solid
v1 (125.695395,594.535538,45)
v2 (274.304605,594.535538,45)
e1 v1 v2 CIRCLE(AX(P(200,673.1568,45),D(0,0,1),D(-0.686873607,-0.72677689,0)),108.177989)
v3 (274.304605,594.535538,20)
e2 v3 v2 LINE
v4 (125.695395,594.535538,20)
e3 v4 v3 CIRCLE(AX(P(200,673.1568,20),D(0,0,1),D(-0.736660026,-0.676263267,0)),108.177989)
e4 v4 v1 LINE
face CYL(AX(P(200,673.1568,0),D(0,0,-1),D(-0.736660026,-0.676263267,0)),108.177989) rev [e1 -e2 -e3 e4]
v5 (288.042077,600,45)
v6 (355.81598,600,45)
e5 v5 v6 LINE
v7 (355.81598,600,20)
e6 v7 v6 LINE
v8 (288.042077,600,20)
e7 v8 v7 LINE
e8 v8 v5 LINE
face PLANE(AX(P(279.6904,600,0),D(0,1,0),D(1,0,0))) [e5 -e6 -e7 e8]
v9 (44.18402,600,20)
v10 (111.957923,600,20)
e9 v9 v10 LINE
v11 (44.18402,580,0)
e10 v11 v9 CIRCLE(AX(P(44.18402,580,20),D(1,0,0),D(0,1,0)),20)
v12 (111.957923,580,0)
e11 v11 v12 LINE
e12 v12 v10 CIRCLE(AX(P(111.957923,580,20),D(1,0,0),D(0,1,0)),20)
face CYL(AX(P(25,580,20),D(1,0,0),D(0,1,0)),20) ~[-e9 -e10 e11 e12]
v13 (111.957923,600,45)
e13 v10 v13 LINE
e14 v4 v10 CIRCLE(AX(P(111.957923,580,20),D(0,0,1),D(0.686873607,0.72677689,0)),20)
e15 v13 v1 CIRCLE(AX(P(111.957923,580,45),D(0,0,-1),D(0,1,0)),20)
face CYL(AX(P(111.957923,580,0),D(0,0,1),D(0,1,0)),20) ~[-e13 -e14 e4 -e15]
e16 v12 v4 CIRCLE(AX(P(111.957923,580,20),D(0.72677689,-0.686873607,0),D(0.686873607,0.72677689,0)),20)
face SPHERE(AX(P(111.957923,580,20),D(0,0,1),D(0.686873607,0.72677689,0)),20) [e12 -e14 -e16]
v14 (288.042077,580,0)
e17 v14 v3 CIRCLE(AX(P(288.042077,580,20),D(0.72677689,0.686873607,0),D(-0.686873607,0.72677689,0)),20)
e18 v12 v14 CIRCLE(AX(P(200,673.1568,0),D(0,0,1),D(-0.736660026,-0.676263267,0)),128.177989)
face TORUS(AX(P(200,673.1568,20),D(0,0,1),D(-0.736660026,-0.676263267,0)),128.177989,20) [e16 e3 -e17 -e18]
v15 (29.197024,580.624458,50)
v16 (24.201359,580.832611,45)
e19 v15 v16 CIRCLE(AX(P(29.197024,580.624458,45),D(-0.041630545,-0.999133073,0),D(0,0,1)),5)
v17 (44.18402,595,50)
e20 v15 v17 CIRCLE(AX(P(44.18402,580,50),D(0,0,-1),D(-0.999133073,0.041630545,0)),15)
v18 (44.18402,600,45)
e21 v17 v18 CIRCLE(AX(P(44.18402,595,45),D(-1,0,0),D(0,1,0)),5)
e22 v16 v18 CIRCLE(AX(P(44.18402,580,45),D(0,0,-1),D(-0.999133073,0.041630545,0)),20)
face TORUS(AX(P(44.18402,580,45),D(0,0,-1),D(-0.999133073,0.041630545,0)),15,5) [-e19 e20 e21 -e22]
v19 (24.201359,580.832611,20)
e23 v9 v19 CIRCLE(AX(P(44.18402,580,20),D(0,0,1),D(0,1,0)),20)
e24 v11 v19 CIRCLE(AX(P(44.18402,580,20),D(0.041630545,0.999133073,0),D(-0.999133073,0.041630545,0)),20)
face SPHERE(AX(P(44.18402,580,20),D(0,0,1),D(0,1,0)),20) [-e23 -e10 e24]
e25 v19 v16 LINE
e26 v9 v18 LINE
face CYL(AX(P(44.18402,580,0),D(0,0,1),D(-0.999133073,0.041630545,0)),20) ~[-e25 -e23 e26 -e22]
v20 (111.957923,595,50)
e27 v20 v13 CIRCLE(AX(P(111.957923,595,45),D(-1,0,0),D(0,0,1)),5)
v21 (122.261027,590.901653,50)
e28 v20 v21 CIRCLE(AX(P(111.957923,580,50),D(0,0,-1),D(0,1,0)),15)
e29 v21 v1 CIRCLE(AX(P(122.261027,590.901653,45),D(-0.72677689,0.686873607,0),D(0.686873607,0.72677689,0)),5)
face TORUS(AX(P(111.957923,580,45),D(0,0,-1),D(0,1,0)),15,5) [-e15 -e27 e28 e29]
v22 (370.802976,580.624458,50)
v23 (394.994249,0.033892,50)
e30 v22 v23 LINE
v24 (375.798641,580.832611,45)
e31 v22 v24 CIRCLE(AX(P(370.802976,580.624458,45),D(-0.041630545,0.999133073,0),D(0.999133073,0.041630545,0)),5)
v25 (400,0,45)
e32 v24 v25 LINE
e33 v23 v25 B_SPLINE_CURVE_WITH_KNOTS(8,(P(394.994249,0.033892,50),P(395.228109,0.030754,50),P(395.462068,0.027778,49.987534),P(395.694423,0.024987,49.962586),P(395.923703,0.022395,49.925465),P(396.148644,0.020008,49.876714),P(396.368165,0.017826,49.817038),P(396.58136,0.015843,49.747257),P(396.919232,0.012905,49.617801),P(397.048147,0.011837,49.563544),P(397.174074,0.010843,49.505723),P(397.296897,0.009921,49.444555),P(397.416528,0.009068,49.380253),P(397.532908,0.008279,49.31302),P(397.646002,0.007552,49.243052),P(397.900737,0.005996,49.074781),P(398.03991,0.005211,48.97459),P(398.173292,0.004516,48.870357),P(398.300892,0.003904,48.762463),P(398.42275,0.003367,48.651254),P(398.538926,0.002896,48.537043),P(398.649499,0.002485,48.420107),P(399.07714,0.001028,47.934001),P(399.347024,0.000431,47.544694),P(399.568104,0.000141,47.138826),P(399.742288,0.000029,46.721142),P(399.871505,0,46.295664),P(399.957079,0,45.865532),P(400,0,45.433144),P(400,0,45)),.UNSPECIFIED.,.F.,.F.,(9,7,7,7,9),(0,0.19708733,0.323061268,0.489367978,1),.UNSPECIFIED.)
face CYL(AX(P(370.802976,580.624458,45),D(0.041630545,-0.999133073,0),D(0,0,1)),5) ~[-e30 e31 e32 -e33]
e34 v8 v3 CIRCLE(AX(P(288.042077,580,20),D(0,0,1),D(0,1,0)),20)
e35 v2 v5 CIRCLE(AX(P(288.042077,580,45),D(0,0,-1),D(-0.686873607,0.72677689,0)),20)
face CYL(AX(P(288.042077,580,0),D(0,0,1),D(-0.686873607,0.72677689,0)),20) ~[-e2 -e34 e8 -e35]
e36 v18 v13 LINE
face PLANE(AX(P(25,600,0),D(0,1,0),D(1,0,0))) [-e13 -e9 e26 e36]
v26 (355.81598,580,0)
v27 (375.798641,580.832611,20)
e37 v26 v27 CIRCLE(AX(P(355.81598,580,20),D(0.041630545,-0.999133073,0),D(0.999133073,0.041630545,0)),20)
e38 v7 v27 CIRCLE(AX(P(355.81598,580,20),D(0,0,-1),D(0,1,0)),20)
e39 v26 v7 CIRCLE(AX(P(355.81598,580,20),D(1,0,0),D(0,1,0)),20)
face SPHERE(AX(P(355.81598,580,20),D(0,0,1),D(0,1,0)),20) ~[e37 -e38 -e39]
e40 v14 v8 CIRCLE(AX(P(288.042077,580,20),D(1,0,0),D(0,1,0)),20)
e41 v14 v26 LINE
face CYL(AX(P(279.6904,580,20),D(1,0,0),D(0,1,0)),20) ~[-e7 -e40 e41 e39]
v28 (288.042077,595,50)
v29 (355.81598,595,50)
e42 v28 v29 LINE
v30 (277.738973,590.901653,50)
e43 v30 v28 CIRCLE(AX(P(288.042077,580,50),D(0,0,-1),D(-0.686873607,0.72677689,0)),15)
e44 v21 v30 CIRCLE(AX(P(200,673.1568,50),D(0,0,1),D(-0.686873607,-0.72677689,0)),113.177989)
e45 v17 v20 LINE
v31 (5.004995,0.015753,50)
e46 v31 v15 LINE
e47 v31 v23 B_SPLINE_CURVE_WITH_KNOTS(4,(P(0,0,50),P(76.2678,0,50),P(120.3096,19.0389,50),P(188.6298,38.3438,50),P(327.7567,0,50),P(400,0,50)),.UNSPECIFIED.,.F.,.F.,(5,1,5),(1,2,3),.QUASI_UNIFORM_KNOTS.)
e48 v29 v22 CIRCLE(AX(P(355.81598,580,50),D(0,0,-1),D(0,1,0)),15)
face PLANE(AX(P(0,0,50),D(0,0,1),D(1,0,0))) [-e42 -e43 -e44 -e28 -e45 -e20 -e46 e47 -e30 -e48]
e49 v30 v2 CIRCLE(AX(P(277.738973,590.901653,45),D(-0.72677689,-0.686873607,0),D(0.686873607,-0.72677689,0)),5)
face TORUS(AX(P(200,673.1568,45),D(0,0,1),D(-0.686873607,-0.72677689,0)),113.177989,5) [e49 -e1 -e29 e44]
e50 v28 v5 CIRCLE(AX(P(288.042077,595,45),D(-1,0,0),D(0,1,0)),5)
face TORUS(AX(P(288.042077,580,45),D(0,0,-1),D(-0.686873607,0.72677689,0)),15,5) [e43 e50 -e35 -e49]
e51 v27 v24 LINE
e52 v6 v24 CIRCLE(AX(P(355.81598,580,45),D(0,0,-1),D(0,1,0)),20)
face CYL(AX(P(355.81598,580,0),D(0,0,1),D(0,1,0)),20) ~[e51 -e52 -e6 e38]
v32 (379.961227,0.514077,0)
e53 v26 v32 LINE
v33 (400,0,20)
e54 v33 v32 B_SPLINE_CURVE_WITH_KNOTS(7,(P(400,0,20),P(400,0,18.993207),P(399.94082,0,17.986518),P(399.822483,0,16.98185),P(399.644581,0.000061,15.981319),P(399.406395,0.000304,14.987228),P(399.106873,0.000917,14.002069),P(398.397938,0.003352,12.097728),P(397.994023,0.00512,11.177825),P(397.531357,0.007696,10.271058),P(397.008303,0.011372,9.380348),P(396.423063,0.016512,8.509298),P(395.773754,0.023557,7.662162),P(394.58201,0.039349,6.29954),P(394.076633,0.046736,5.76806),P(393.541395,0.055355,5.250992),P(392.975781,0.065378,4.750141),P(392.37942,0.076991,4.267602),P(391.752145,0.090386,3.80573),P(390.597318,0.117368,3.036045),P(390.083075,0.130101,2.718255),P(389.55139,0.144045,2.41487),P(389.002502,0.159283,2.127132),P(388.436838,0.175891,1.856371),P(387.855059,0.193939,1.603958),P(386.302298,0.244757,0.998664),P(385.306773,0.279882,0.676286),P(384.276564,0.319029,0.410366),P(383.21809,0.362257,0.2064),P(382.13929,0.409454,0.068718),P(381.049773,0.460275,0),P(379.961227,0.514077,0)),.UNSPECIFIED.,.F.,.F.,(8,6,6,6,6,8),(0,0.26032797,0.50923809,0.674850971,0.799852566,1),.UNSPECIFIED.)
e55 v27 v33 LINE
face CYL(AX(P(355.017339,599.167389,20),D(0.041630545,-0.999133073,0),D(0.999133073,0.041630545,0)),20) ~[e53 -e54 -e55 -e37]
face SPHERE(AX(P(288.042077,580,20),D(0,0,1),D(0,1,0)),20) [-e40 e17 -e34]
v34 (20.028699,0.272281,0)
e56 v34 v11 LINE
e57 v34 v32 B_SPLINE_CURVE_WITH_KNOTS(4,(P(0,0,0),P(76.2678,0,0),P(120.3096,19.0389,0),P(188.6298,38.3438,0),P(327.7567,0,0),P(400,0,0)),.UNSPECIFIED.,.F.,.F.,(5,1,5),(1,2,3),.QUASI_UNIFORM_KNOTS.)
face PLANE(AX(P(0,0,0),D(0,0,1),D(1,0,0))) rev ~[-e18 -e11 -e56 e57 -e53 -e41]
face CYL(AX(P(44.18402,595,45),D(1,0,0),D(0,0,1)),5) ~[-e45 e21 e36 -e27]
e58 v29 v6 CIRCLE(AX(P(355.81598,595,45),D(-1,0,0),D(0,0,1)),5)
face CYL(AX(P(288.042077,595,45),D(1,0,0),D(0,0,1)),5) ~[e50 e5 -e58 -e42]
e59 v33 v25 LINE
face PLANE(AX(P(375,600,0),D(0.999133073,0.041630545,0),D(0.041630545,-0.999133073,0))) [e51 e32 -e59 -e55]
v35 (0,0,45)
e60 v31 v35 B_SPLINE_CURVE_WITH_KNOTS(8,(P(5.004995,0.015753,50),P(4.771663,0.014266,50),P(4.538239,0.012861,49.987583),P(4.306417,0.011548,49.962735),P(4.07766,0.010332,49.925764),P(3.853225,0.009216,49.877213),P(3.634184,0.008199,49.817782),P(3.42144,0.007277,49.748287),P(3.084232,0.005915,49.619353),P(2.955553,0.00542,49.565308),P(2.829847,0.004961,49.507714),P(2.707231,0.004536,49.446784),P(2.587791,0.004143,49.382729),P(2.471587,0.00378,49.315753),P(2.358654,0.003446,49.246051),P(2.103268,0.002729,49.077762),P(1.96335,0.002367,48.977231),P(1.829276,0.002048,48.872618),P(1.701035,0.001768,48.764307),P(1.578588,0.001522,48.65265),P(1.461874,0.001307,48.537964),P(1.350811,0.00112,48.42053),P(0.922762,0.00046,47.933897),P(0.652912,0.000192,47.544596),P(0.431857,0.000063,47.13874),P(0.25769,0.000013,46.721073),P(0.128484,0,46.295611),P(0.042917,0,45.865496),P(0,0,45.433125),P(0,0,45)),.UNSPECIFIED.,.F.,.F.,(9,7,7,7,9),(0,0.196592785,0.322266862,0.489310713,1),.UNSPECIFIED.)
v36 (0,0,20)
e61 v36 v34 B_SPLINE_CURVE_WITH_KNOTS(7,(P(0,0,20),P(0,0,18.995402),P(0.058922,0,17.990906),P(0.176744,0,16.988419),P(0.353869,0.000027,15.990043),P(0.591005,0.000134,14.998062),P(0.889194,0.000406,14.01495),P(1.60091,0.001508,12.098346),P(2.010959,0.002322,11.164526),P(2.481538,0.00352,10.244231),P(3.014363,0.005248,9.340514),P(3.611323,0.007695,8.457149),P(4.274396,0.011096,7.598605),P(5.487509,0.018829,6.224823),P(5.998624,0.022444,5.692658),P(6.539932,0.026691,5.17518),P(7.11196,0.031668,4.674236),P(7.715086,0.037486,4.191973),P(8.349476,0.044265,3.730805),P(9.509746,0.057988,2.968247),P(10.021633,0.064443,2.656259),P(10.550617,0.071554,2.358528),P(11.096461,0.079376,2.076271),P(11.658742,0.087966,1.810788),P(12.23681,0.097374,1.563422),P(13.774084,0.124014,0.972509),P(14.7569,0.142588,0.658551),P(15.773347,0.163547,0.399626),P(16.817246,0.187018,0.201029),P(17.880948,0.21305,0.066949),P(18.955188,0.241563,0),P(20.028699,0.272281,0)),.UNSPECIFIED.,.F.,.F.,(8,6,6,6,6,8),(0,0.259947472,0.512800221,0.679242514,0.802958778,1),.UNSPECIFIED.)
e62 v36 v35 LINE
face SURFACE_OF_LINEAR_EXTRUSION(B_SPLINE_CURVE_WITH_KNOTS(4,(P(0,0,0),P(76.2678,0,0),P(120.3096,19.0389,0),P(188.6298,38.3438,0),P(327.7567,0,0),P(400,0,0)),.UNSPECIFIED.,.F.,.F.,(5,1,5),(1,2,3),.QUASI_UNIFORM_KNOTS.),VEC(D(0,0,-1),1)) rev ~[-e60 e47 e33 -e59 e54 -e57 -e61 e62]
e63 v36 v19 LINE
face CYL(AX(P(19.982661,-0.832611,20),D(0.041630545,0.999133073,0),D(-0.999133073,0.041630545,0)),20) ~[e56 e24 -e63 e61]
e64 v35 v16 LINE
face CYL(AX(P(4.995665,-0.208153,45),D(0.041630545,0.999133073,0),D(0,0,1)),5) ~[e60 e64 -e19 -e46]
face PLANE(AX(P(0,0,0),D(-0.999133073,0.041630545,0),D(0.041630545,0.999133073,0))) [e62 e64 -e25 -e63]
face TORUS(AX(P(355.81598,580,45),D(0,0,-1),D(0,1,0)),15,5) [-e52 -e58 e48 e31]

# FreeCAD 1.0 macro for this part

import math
import FreeCAD as App
import Part
import Sketcher

V = App.Vector
Q = App.Units.Quantity


def edges_at(feature, points):
    """Names of the edges that pass closest to the given points."""
    edges = feature.Shape.Edges
    near = lambda p: min(range(len(edges)), key=lambda i: edges[i].distToShape(Part.Vertex(*p))[0])
    return sorted({f"Edge{near(p) + 1}" for p in points})

doc = App.newDocument("Part")
body = doc.addObject("PartDesign::Body", "Body")

# Sketch on XY plane
sketch1 = doc.addObject("Sketcher::SketchObject", "Sketch")
body.addObject(sketch1)
sketch1.AttachmentSupport = (doc.XY_Plane, [""])
sketch1.MapMode = "FlatFace"
sketch1.addGeometry([
    Part.LineSegment(V(25, 600, 0), V(0, 0, 0)),  # 0
    Part.BSplineCurve([V(0, 0, 0), V(76.2678, 0, 0), V(120.3096, 19.0389, 0), V(188.6298, 38.3438, 0), V(327.7567, 0, 0), V(400, 0, 0)], [5, 1, 5], [1, 2, 3], False, 4, [1, 1, 1, 1, 1, 1], False),  # 1
    Part.LineSegment(V(400, 0, 0), V(375, 600, 0)),  # 2
    Part.LineSegment(V(375, 600, 0), V(279.6904, 600, 0)),  # 3
    Part.ArcOfCircle(Part.Circle(V(200, 673.1568, 0), V(0, 0, 1), 108.177989), math.radians(-137.447673), math.radians(-42.552327)),  # 4
    Part.LineSegment(V(120.3096, 600, 0), V(25, 600, 0)),  # 5
], False)
sketch1.addConstraint([
    Sketcher.Constraint("Block", 1),
    Sketcher.Constraint("Coincident", 0, 2, 1, 1),
    Sketcher.Constraint("Coincident", 1, 2, 2, 1),
    Sketcher.Constraint("Coincident", 2, 2, 3, 1),
    Sketcher.Constraint("Coincident", 3, 2, 4, 2),
    Sketcher.Constraint("Coincident", 4, 1, 5, 1),
    Sketcher.Constraint("Coincident", 5, 2, 0, 1),
    Sketcher.Constraint("Horizontal", 3),
    Sketcher.Constraint("Horizontal", 5),
    Sketcher.Constraint("Horizontal", 3, 2, 4, 1),
    Sketcher.Constraint("Equal", 3, 5),
    Sketcher.Constraint("Equal", 0, 2),
    Sketcher.Constraint("DistanceY", -1, 1, 2, 2, Q("600 mm")),
    Sketcher.Constraint("DistanceX", -1, 1, 5, 2, Q("25 mm")),
    Sketcher.Constraint("Radius", 4, Q("108.178 mm")),
    Sketcher.Constraint("DistanceX", 3, 2, 3, 1, Q("95.3096 mm")),
])
pad1 = doc.addObject("PartDesign::Pad", "Pad")
body.addObject(pad1)
pad1.Profile = sketch1
pad1.Length = 50
doc.recompute()

fillet = doc.addObject("PartDesign::Fillet", "Fillet")
body.addObject(fillet)
fillet.Base = (pad1, edges_at(pad1, [
    (327.345, 600, 0),
    (387.5, 300, 0),
    (200, 564.979, 0),
    (72.655, 600, 0),
    (12.5, 300, 0),
    (25, 600, 25),
    (120.31, 600, 25),
    (279.69, 600, 25),
    (375, 600, 25),
]))
fillet.Radius = 20
doc.recompute()

fillet2 = doc.addObject("PartDesign::Fillet", "Fillet001")
body.addObject(fillet2)
fillet2.Base = (fillet, edges_at(fillet, [
    (78.071, 600, 50),
    (119.35, 598.584, 50),
    (200, 564.979, 50),
    (280.65, 598.584, 50),
    (321.929, 600, 50),
    (369.661, 594.433, 50),
    (387.899, 290.416, 50),
    (12.101, 290.416, 50),
    (30.339, 594.433, 50),
]))
fillet2.Radius = 5

doc.recompute()
